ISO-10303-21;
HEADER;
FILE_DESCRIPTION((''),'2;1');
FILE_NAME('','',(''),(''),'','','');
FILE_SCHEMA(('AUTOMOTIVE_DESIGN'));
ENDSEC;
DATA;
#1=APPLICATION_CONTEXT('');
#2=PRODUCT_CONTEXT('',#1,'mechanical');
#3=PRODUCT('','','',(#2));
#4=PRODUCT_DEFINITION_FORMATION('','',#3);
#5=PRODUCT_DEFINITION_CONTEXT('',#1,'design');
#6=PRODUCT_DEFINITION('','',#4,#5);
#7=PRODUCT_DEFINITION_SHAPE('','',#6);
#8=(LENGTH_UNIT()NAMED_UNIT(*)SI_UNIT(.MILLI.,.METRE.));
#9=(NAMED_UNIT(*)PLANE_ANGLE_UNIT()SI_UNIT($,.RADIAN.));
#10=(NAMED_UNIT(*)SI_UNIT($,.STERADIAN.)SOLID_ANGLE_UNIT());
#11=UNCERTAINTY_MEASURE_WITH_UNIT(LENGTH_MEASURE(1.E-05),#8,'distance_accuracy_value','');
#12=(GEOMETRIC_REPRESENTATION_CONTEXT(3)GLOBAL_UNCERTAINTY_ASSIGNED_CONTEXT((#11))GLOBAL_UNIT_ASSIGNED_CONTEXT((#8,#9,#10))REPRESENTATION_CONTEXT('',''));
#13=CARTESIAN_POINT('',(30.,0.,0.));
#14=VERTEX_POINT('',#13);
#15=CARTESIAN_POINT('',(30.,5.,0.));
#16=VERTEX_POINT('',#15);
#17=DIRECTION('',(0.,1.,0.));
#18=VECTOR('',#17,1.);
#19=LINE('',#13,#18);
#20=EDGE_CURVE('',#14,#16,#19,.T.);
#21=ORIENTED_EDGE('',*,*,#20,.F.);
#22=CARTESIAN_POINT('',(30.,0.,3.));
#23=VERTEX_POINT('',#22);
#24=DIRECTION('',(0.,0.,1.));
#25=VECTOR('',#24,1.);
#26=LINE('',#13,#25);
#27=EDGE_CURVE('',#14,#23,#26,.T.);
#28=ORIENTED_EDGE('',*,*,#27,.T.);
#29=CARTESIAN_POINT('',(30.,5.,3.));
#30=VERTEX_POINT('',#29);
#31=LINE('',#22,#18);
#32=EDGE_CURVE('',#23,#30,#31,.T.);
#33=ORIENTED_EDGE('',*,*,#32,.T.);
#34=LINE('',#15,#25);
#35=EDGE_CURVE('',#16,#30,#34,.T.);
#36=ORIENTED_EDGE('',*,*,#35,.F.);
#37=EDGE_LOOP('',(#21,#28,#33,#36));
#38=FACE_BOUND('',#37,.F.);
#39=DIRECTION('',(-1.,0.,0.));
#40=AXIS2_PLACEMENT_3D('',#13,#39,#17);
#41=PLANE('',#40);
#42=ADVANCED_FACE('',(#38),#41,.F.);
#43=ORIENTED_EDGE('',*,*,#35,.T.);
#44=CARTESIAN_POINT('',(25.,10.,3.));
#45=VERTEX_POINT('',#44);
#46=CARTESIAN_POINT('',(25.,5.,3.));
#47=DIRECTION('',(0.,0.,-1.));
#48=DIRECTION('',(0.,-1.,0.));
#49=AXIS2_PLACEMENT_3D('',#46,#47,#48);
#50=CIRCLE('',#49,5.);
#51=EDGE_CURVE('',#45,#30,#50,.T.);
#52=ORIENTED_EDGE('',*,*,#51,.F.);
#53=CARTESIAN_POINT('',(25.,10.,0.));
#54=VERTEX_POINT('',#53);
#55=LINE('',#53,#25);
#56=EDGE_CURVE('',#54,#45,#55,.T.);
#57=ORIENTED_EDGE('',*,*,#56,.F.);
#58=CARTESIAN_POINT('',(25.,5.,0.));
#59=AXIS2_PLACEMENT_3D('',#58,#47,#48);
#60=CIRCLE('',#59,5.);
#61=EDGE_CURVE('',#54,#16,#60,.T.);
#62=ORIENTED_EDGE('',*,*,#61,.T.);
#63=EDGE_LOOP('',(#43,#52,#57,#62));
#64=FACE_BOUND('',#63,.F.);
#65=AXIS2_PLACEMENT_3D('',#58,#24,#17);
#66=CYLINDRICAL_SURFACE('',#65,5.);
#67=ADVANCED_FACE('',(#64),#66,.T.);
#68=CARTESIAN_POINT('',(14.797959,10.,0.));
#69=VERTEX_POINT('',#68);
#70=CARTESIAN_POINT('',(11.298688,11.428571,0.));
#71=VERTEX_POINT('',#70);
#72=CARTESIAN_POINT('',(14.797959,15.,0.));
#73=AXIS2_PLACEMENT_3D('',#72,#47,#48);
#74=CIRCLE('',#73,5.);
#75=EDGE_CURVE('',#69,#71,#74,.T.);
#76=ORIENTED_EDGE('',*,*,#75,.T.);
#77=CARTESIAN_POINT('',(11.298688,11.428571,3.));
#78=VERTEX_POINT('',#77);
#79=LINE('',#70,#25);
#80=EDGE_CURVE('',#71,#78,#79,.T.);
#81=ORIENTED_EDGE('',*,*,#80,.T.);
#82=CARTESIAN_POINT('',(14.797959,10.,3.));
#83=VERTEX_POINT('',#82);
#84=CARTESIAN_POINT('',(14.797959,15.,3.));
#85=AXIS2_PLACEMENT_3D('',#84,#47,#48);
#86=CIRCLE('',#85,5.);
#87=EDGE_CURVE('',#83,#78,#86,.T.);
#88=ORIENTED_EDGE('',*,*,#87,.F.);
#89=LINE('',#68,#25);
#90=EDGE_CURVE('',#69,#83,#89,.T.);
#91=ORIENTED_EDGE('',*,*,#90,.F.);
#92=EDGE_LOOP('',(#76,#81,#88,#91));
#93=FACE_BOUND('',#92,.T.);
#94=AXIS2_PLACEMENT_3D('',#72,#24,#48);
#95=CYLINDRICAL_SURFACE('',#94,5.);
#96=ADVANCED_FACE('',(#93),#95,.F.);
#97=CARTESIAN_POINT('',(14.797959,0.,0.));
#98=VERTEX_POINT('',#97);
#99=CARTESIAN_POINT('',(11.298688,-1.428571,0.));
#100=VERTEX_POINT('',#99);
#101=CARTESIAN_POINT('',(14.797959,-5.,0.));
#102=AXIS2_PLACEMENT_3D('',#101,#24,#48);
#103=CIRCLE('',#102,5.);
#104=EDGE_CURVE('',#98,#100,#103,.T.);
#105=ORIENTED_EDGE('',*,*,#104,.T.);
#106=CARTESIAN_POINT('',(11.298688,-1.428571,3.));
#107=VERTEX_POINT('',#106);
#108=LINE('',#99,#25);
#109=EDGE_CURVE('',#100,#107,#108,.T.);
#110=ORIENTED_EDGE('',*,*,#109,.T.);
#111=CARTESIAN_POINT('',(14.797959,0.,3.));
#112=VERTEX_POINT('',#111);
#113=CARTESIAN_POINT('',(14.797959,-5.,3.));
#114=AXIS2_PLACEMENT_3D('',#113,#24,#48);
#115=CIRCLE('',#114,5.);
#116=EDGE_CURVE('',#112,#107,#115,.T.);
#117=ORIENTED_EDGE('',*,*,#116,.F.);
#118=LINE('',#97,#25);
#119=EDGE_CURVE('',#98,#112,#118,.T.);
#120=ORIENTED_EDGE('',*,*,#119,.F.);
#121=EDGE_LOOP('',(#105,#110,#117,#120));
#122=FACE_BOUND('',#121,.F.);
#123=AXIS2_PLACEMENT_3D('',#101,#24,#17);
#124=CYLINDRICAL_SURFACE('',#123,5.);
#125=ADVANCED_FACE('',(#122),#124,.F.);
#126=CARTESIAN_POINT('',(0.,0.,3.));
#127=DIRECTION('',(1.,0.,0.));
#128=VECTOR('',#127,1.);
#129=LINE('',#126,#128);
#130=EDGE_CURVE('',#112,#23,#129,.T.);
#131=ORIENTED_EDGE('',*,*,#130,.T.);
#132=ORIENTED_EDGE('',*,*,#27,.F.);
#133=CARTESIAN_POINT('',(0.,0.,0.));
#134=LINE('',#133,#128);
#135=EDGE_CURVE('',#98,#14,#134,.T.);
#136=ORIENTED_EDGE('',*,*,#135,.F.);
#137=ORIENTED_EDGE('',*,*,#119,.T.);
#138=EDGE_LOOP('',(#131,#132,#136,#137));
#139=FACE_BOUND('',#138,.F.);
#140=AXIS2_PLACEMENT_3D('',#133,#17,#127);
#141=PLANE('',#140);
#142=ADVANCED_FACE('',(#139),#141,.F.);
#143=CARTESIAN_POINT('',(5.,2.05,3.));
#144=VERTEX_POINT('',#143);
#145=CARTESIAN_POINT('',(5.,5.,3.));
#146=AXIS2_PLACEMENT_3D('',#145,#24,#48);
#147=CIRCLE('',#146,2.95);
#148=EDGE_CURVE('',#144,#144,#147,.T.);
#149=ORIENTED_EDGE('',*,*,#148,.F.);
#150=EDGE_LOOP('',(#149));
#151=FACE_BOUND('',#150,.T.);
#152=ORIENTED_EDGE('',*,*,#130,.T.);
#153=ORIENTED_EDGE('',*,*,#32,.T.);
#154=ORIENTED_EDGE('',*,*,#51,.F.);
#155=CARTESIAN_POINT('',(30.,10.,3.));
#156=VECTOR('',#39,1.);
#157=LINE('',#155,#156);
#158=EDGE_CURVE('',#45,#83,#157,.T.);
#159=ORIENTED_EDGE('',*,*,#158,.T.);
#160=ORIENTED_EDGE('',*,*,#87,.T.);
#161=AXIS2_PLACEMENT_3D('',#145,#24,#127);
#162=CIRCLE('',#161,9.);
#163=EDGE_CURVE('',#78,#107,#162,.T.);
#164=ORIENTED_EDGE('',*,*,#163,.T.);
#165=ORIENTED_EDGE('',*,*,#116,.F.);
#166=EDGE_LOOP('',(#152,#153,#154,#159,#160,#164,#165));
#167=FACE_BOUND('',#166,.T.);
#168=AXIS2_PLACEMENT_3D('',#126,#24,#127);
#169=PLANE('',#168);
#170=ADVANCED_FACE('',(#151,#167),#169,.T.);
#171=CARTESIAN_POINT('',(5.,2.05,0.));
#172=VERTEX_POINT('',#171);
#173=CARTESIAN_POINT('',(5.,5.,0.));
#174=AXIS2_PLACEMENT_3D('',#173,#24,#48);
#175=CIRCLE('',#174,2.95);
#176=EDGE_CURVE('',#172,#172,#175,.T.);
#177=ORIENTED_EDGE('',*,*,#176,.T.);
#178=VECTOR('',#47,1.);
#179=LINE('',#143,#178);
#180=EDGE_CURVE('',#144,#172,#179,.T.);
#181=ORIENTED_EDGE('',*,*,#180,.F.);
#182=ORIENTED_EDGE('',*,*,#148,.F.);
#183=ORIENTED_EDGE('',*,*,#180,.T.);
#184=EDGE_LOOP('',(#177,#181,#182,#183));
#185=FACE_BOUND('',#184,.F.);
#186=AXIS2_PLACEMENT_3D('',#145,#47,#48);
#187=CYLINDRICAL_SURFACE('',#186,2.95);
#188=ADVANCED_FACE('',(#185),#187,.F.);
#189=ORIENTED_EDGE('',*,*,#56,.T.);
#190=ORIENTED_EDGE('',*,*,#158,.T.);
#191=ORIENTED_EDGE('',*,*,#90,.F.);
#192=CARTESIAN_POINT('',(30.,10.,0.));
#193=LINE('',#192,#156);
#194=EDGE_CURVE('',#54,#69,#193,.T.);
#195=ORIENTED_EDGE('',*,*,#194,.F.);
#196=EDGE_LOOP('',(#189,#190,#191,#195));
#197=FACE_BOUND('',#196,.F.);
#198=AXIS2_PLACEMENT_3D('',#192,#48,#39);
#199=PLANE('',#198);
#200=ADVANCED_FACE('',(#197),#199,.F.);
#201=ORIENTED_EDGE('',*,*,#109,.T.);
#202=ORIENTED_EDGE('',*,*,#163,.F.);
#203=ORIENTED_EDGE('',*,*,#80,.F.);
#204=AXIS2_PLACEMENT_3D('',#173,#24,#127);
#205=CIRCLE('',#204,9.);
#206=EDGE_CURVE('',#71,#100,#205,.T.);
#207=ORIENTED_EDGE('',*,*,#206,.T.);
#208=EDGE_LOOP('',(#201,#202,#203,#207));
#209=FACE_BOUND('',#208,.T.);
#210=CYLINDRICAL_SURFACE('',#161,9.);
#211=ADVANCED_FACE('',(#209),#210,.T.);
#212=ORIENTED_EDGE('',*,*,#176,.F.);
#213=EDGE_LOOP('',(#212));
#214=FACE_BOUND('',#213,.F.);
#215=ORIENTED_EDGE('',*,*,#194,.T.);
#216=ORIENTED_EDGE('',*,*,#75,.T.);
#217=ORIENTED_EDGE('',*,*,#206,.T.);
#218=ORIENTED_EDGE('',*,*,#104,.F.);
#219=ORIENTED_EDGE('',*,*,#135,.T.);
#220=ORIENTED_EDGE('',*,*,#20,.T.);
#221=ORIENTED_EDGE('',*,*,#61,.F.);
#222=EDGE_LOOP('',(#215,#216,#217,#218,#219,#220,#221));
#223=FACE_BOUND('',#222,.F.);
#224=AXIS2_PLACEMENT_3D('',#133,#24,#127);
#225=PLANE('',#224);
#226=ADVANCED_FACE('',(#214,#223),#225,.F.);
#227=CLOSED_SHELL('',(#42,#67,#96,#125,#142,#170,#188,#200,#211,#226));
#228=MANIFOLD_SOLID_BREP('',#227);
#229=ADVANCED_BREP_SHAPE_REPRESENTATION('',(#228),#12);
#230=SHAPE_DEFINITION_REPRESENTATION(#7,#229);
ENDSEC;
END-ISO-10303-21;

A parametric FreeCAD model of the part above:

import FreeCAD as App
import Part
import Sketcher
from FreeCAD import Vector
Q = App.Units.Quantity


def edges_at(feature, points):
    """Names of the edges that pass closest to the given points."""
    edges = feature.Shape.Edges
    near = lambda p: min(range(len(edges)), key=lambda i: edges[i].distToShape(Part.Vertex(*p))[0])
    return sorted({f"Edge{near(p) + 1}" for p in points})


def add_polygon(sketch, points):
    """Adds a closed chain of lines whose ends are joined by coincident constraints."""
    first, n = sketch.GeometryCount, len(points)
    for a, b in zip(points, points[1:] + points[:1]):
        sketch.addGeometry(Part.LineSegment(App.Vector(*a, 0), App.Vector(*b, 0)), False)
    for i in range(n):
        sketch.addConstraint(Sketcher.Constraint("Coincident", first + i, 2, first + (i + 1) % n, 1))

doc = App.newDocument("Part")
body = doc.addObject("PartDesign::Body", "Body")

# Sketch on XY plane
sketch1 = body.newObject("Sketcher::SketchObject", "Sketch")
sketch1.AttachmentSupport = (doc.getObject("XY_Plane"), [""])
sketch1.MapMode = "FlatFace"
add_polygon(sketch1, [(0, 10), (0, 0), (30, 0), (30, 10)])  # lines 0-3
sketch1.addConstraint([
    Sketcher.Constraint("Vertical", 0),
    Sketcher.Constraint("Horizontal", 1),
    Sketcher.Constraint("Vertical", 2),
    Sketcher.Constraint("Horizontal", 3),
    Sketcher.Constraint("Coincident", 0, 2, -1, 1),
    Sketcher.Constraint("DistanceX", 1, 1, 1, 2, Q("30 mm")),
    Sketcher.Constraint("DistanceY", 0, 2, 0, 1, Q("10 mm")),
])
pad1 = body.newObject("PartDesign::Pad", "Pad")
pad1.Profile = sketch1
pad1.Length = 3

# Sketch on XY plane
sketch2 = body.newObject("Sketcher::SketchObject", "Sketch001")
sketch2.AttachmentSupport = (doc.getObject("XY_Plane"), [""])
sketch2.MapMode = "FlatFace"
sketch2.AttachmentOffset = App.Placement(Vector(0, 0, 3), App.Rotation())
sketch2.addGeometry(Part.Circle(Vector(5, 5, 0), Vector(0, 0, 1), 3), False)
sketch2.addConstraint([
    Sketcher.Constraint("Diameter", 0, Q("5.9 mm")),
    Sketcher.Constraint("DistanceX", -1, 1, 0, 3, Q("5 mm")),
    Sketcher.Constraint("DistanceY", -1, 1, 0, 3, Q("5 mm")),
])
doc.recompute()
hole = body.newObject("PartDesign::Hole", "Hole")
hole.Profile = sketch2
hole.ThreadType = "None"
hole.Diameter = 5.9
hole.DepthType = "ThroughAll"
doc.recompute()

fillet = body.newObject("PartDesign::Fillet", "Fillet")
fillet.Base = (hole, edges_at(hole, [(30, 10, 1.5)]))
fillet.Radius = 5

# Sketch on XY plane
sketch3 = body.newObject("Sketcher::SketchObject", "Sketch002")
sketch3.AttachmentSupport = (doc.getObject("XY_Plane"), [""])
sketch3.MapMode = "FlatFace"
sketch3.AttachmentOffset = App.Placement(Vector(0, 0, 3), App.Rotation())
sketch3.addGeometry([
    Part.Circle(Vector(5, 5, 0), Vector(0, 0, 1), 9),
    Part.Circle(Vector(5, 5, 0), Vector(0, 0, 1), 3),
], False)
sketch3.addConstraint([
    Sketcher.Constraint("Coincident", 1, 3, 0, 3),
    Sketcher.Constraint("Diameter", 0, Q("18 mm")),
    Sketcher.Constraint("Diameter", 1, Q("5.9 mm")),
    Sketcher.Constraint("DistanceX", -1, 1, 0, 3, Q("5 mm")),
    Sketcher.Constraint("DistanceY", -1, 1, 0, 3, Q("5 mm")),
])
pad2 = body.newObject("PartDesign::Pad", "Pad001")
pad2.Profile = sketch3
pad2.Length = 3
pad2.Reversed = True
doc.recompute()

fillet2 = body.newObject("PartDesign::Fillet", "Fillet001")
fillet2.Base = (pad2, edges_at(pad2, [(12.483, 10, 1.5), (12.483, 0, 1.5)]))
fillet2.Radius = 5

doc.recompute()
